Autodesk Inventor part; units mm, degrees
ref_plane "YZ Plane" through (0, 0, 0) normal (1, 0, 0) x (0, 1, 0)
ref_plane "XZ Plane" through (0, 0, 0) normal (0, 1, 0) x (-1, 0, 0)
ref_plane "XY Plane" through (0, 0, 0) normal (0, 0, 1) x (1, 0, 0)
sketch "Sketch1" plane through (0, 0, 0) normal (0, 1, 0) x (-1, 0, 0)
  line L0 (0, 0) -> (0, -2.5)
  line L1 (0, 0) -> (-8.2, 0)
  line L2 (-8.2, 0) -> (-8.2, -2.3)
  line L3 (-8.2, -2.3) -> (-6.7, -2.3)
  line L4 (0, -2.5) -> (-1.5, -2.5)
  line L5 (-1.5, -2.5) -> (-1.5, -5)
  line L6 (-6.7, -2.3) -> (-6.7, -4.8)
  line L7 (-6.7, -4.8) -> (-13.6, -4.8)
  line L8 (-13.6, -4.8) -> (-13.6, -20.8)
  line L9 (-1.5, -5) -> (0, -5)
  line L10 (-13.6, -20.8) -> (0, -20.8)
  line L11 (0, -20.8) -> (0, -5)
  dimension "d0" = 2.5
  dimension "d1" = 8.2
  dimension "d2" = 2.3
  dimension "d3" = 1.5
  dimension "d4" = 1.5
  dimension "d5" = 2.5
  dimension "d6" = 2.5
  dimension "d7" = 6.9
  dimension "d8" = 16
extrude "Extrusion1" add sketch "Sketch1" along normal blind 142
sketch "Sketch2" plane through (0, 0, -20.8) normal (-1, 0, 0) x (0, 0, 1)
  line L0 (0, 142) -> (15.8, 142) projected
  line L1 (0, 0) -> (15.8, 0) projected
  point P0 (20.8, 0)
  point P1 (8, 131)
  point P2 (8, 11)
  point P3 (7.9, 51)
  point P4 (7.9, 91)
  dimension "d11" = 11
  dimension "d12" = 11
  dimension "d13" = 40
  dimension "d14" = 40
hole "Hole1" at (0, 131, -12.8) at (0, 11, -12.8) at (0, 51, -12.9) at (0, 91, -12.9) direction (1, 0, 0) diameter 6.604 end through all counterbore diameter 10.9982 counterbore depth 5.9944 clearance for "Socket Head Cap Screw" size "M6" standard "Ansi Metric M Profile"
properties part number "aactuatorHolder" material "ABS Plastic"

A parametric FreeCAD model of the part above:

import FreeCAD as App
import Part
import Sketcher


def add_polygon(sketch, points):
    """Adds a closed chain of lines whose ends are joined by coincident constraints."""
    first, n = sketch.GeometryCount, len(points)
    for a, b in zip(points, points[1:] + points[:1]):
        sketch.addGeometry(Part.LineSegment(App.Vector(*a, 0), App.Vector(*b, 0)), False)
    for i in range(n):
        sketch.addConstraint(Sketcher.Constraint("Coincident", first + i, 2, first + (i + 1) % n, 1))

doc = App.newDocument("Part")
params = doc.addObject("Spreadsheet::Sheet", "Params")
for row, (alias, value) in enumerate([
    ("sketch1_height", "16 mm"),
    ("sketch1_width", "8.2 mm"),
    ("sketch1_width2", "1.5 mm"),
    ("sketch1_width3", "6.9 mm"),
    ("sketch1_height2", "2.5 mm"),
    ("pad1_length", "142 mm"),
    ("hole_diameter", "6.604 mm"),
    ("hole_cbore_diameter", "10.9982 mm"),
    ("hole_cbore_depth", "5.9944 mm"),
], start=1):
    params.set(f"A{row}", alias)
    params.set(f"B{row}", "=" + value)
    params.setAlias(f"B{row}", alias)

body = doc.addObject("PartDesign::Body", "Body")

sketch1 = doc.addObject("Sketcher::SketchObject", "Sketch")
body.addObject(sketch1)
sketch1.AttachmentSupport = (doc.XZ_Plane, [""])
sketch1.MapMode = "FlatFace"
add_polygon(sketch1, [(0, -2.5), (0, 0), (8.2, 0), (8.2, -2.3), (6.7, -2.3), (6.7, -4.8), (13.6, -4.8), (13.6, -20.8), (0, -20.8), (0, -5), (1.5, -5), (1.5, -2.5)])
sketch1.addConstraint(Sketcher.Constraint("Vertical", 0))
sketch1.addConstraint(Sketcher.Constraint("Horizontal", 1))
sketch1.addConstraint(Sketcher.Constraint("Vertical", 2))
sketch1.addConstraint(Sketcher.Constraint("Horizontal", 3))
sketch1.addConstraint(Sketcher.Constraint("Vertical", 4))
sketch1.addConstraint(Sketcher.Constraint("Horizontal", 5))
sketch1.addConstraint(Sketcher.Constraint("Vertical", 6))
sketch1.addConstraint(Sketcher.Constraint("Horizontal", 7))
sketch1.addConstraint(Sketcher.Constraint("Vertical", 8))
sketch1.addConstraint(Sketcher.Constraint("Horizontal", 9))
sketch1.addConstraint(Sketcher.Constraint("Vertical", 10))
sketch1.addConstraint(Sketcher.Constraint("Horizontal", 11))
sketch1.addConstraint(Sketcher.Constraint("Coincident", 0, 2, -1, 1))
sketch1.addConstraint(Sketcher.Constraint("PointOnObject", 7, 2, -2))
sketch1.addConstraint(Sketcher.Constraint("Equal", 3, 9))
sketch1.addConstraint(Sketcher.Constraint("Equal", 0, 4))
sketch1.addConstraint(Sketcher.Constraint("Equal", 4, 10))
sketch1.addConstraint(Sketcher.Constraint("DistanceY", 6, 2, 6, 1, 16.0))
sketch1.addConstraint(Sketcher.Constraint("DistanceX", 1, 1, 1, 2, 8.2))
sketch1.addConstraint(Sketcher.Constraint("DistanceX", 3, 2, 3, 1, 1.5))
sketch1.addConstraint(Sketcher.Constraint("DistanceX", 5, 1, 5, 2, 6.9))
sketch1.addConstraint(Sketcher.Constraint("DistanceY", 0, 1, 0, 2, 2.5))
sketch1.addConstraint(Sketcher.Constraint("DistanceY", 2, 2, 2, 1, 2.3))
sketch1.setExpression("Constraints[29]", "Params.sketch1_height")
sketch1.setExpression("Constraints[30]", "Params.sketch1_width")
sketch1.setExpression("Constraints[31]", "Params.sketch1_width2")
sketch1.setExpression("Constraints[32]", "Params.sketch1_width3")
sketch1.setExpression("Constraints[33]", "Params.sketch1_height2")
pad1 = doc.addObject("PartDesign::Pad", "Pad")
body.addObject(pad1)
pad1.Profile = sketch1
pad1.setExpression("Length", "Params.pad1_length")
pad1.Reversed = True

sketch2 = doc.addObject("Sketcher::SketchObject", "Sketch001")
body.addObject(sketch2)
sketch2.AttachmentSupport = (doc.YZ_Plane, [""])
sketch2.MapMode = "FlatFace"
sketch2.addGeometry(Part.Circle(App.Vector(131, -12.8, 0), App.Vector(0, 0, 1), 3.302), False)
sketch2.addGeometry(Part.Circle(App.Vector(11, -12.8, 0), App.Vector(0, 0, 1), 3.302), False)
sketch2.addGeometry(Part.Circle(App.Vector(51, -12.9, 0), App.Vector(0, 0, 1), 3.302), False)
sketch2.addGeometry(Part.Circle(App.Vector(91, -12.9, 0), App.Vector(0, 0, 1), 3.302), False)
sketch2.addConstraint(Sketcher.Constraint("Equal", 0, 1))
sketch2.addConstraint(Sketcher.Constraint("Equal", 1, 2))
sketch2.addConstraint(Sketcher.Constraint("Equal", 2, 3))
sketch2.addConstraint(Sketcher.Constraint("Horizontal", 0, 3, 1, 3))
sketch2.addConstraint(Sketcher.Constraint("Horizontal", 2, 3, 3, 3))
sketch2.addConstraint(Sketcher.Constraint("Diameter", 0, 6.604))
sketch2.addConstraint(Sketcher.Constraint("DistanceX", -1, 1, 0, 3, 131.0))
sketch2.addConstraint(Sketcher.Constraint("DistanceX", -1, 1, 1, 3, 11.0))
sketch2.addConstraint(Sketcher.Constraint("DistanceX", -1, 1, 2, 3, 51.0))
sketch2.addConstraint(Sketcher.Constraint("DistanceX", -1, 1, 3, 3, 91.0))
sketch2.addConstraint(Sketcher.Constraint("DistanceY", 0, 3, -1, 1, 12.8))
sketch2.addConstraint(Sketcher.Constraint("DistanceY", 2, 3, -1, 1, 12.9))
doc.recompute()
hole = doc.addObject("PartDesign::Hole", "Hole")
body.addObject(hole)
hole.Profile = sketch2
hole.ThreadType = "None"
hole.setExpression("Diameter", "Params.hole_diameter")
hole.DepthType = "ThroughAll"
hole.HoleCutType = "Counterbore"
hole.setExpression("HoleCutDiameter", "Params.hole_cbore_diameter")
hole.setExpression("HoleCutDepth", "Params.hole_cbore_depth")
hole.Reversed = True

doc.recompute()
